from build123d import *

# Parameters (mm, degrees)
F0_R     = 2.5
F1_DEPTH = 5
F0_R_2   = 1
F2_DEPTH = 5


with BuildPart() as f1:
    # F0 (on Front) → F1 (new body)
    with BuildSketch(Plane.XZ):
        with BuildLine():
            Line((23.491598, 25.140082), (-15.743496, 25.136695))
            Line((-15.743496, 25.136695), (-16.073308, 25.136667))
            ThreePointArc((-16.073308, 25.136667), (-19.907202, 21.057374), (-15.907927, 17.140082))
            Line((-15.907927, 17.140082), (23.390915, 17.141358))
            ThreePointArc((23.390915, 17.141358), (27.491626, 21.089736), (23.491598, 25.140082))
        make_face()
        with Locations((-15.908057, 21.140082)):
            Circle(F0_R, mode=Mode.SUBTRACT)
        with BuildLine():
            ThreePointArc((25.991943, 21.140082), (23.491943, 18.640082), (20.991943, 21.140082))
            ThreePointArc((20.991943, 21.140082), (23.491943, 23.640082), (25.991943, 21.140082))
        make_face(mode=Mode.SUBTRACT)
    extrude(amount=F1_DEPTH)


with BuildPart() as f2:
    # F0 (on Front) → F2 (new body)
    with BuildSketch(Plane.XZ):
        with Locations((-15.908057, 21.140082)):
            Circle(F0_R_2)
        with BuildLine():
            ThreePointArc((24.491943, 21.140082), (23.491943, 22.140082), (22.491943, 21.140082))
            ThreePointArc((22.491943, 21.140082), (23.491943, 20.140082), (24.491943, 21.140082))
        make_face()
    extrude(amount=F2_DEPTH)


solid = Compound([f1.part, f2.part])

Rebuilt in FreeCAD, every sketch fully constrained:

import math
import FreeCAD as App
import Part
import Sketcher

V = App.Vector

doc = App.newDocument("Part")
params = doc.addObject("Spreadsheet::Sheet", "Params")
for row, (alias, value) in enumerate([
    ("sketch1_diameter", "5 mm"),
    ("sketch1_radius", "4 mm"),
    ("pad1_length", "5 mm"),
    ("sketch2_diameter", "2 mm"),
    ("pad2_length", "5 mm"),
], start=1):
    params.set(f"A{row}", alias)
    params.set(f"B{row}", "=" + value)
    params.setAlias(f"B{row}", alias)

body = doc.addObject("PartDesign::Body", "Body")

# Sketch on XZ plane
sketch1 = body.newObject("Sketcher::SketchObject", "Sketch")
sketch1.AttachmentSupport = (doc.getObject("XZ_Plane"), [""])
sketch1.MapMode = "FlatFace"
sketch1.addGeometry([
    Part.LineSegment(V(23.49, 25.14, 0), V(-15.74, 25.14, 0)),  # 0
    Part.LineSegment(V(-15.74, 25.14, 0), V(-16.07, 25.14, 0)),  # 1
    Part.ArcOfCircle(Part.Circle(V(-15.91, 21.14, 0), V(0, 0, 1), 4), math.radians(92), math.radians(270)),  # 2
    Part.LineSegment(V(-15.91, 17.14, 0), V(23.39, 17.14, 0)),  # 3
    Part.ArcOfCircle(Part.Circle(V(23.49, 21.14, 0), V(0, 0, 1), 4), math.radians(-91), math.radians(90)),  # 4
    Part.Circle(V(-15.91, 21.14, 0), V(0, 0, 1), 2.5),  # 5
    Part.Circle(V(23.49, 21.14, 0), V(0, 0, 1), 2.5),  # 6
], False)
sketch1.addConstraint([
    Sketcher.Constraint("Coincident", 0, 2, 1, 1),
    Sketcher.Constraint("Coincident", 1, 2, 2, 1),
    Sketcher.Constraint("Tangent", 2, 2, 3, 1),
    Sketcher.Constraint("Coincident", 3, 2, 4, 1),
    Sketcher.Constraint("Tangent", 4, 2, 0, 1),
    Sketcher.Constraint("Coincident", 5, 3, 2, 3),
    Sketcher.Constraint("Coincident", 6, 3, 4, 3),
    Sketcher.Constraint("Equal", 2, 4),
    Sketcher.Constraint("Equal", 5, 6),
    Sketcher.Constraint("Parallel", 0, 1),
    Sketcher.Constraint("Horizontal", 2, 3, 4, 3),
    Sketcher.Constraint("Diameter", 5, 5.0),
    Sketcher.Constraint("Radius", 2, 4.0),
    Sketcher.Constraint("DistanceX", 2, 3, 4, 3, 39.4),
    Sketcher.Constraint("DistanceY", -1, 1, 2, 3, 21.140082),
    Sketcher.Constraint("DistanceX", 1, 2, -1, 1, 16.073308),
    Sketcher.Constraint("DistanceY", -1, 1, 3, 2, 17.141358),
    Sketcher.Constraint("DistanceX", 5, 3, 0, 2, 0.164561),
    Sketcher.Constraint("DistanceX", 1, 2, 5, 3, 0.165251),
])
sketch1.setExpression("Constraints[11]", "Params.sketch1_diameter")
sketch1.setExpression("Constraints[12]", "Params.sketch1_radius")
pad1 = body.newObject("PartDesign::Pad", "Pad")
pad1.Profile = sketch1
pad1.setExpression("Length", "Params.pad1_length")
body2 = doc.addObject("PartDesign::Body", "Body001")
body2.AllowCompound = True

# Sketch on XZ plane
sketch2 = body2.newObject("Sketcher::SketchObject", "Sketch001")
sketch2.AttachmentSupport = (doc.getObject("XZ_Plane001"), [""])
sketch2.MapMode = "FlatFace"
sketch2.addGeometry([
    Part.Circle(V(-15.9, 21.1, 0), V(0, 0, 1), 1),
    Part.Circle(V(23.5, 21.1, 0), V(0, 0, 1), 1),
], False)
sketch2.addConstraint([
    Sketcher.Constraint("Equal", 0, 1),
    Sketcher.Constraint("Horizontal", 0, 3, 1, 3),
    Sketcher.Constraint("Diameter", 0, 2.0),
    Sketcher.Constraint("DistanceX", 0, 3, 1, 3, 39.4),
    Sketcher.Constraint("DistanceY", -1, 1, 0, 3, 21.140082),
    Sketcher.Constraint("DistanceX", 0, 3, -1, 1, 15.908057),
])
sketch2.setExpression("Constraints[2]", "Params.sketch2_diameter")
pad2 = body2.newObject("PartDesign::Pad", "Pad001")
pad2.Profile = sketch2
pad2.setExpression("Length", "Params.pad2_length")

doc.recompute()
